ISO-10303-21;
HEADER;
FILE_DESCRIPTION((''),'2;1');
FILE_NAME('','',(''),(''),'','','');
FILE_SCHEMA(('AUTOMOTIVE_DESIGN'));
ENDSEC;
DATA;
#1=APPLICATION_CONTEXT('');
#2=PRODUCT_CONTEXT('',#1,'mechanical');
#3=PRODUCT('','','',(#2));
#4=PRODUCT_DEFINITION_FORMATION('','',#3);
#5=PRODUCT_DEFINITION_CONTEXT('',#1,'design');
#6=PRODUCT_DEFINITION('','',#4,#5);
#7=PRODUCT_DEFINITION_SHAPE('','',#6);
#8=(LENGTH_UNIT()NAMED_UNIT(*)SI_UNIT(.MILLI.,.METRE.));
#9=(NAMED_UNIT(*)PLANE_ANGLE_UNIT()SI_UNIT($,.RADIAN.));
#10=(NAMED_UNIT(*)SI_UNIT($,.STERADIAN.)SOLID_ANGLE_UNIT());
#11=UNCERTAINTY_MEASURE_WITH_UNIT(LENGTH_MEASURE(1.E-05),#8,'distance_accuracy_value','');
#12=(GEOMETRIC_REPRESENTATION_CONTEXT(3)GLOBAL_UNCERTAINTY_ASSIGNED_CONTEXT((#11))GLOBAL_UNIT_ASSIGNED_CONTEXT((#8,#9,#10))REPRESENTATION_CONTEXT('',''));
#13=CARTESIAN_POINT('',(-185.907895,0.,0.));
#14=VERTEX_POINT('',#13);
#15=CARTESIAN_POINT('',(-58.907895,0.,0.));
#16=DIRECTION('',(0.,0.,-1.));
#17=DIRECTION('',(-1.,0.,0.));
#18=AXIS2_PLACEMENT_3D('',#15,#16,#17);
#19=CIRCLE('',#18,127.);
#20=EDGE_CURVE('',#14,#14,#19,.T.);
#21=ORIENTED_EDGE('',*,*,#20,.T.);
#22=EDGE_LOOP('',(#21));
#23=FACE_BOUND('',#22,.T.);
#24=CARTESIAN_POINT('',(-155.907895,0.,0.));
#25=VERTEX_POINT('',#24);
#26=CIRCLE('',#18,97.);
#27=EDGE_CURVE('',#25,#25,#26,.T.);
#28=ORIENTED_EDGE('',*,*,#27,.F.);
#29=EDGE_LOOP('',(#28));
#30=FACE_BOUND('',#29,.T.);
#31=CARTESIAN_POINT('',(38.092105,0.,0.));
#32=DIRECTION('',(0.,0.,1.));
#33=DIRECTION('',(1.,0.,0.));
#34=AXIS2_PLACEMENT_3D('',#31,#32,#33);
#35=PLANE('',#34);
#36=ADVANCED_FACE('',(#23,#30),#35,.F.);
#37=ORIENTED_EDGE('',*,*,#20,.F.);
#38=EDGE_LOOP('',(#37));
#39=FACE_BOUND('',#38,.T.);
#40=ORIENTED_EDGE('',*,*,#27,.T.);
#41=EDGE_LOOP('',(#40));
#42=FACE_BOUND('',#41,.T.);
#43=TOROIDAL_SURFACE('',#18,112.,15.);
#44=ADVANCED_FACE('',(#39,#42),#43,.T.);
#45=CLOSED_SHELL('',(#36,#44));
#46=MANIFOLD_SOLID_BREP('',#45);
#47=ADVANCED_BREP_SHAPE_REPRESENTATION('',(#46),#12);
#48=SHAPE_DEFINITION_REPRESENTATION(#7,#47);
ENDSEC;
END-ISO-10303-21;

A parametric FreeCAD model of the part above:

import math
import FreeCAD as App
import Part
import Sketcher
from FreeCAD import Vector
Q = App.Units.Quantity

doc = App.newDocument("Part")
body = doc.addObject("PartDesign::Body", "Body")

# Sketch on XZ plane
sketch1 = body.newObject("Sketcher::SketchObject", "Sketch")
sketch1.AttachmentSupport = (doc.getObject("XZ_Plane"), [""])
sketch1.MapMode = "FlatFace"
sketch1.addGeometry(Part.LineSegment(Vector(68, 0, 0), Vector(38, 0, 0)), False)
sketch1.addGeometry(Part.ArcOfCircle(Part.Circle(Vector(53, 0, 0), Vector(0, 0, 1), 15), math.radians(0), math.radians(180)), False)
sketch1.addGeometry(Part.LineSegment(Vector(-59, 0, 0), Vector(-59, 10, 0)), True)  # axis
sketch1.addConstraint(Sketcher.Constraint("Coincident", 0, 1, 1, 1))
sketch1.addConstraint(Sketcher.Constraint("Coincident", 1, 2, 0, 2))
sketch1.addConstraint(Sketcher.Constraint("Horizontal", 0))
sketch1.addConstraint(Sketcher.Constraint("Vertical", 2))
sketch1.addConstraint(Sketcher.Constraint("PointOnObject", 1, 3, -1))
sketch1.addConstraint(Sketcher.Constraint("PointOnObject", 0, 1, -1))
sketch1.addConstraint(Sketcher.Constraint("PointOnObject", 2, 1, -1))
sketch1.addConstraint(Sketcher.Constraint("Radius", 1, Q("15 mm")))
sketch1.addConstraint(Sketcher.Constraint("DistanceY", 2, 1, 2, 2, Q("10 mm")))
sketch1.addConstraint(Sketcher.Constraint("DistanceX", 2, 1, 1, 2, Q("97 mm")))
sketch1.addConstraint(Sketcher.Constraint("DistanceX", -1, 1, 1, 3, Q("53.092105 mm")))
revolution = body.newObject("PartDesign::Revolution", "Revolution")
revolution.Profile = sketch1
revolution.ReferenceAxis = (sketch1, ["Axis0"])
revolution.Angle = 360

doc.recompute()
